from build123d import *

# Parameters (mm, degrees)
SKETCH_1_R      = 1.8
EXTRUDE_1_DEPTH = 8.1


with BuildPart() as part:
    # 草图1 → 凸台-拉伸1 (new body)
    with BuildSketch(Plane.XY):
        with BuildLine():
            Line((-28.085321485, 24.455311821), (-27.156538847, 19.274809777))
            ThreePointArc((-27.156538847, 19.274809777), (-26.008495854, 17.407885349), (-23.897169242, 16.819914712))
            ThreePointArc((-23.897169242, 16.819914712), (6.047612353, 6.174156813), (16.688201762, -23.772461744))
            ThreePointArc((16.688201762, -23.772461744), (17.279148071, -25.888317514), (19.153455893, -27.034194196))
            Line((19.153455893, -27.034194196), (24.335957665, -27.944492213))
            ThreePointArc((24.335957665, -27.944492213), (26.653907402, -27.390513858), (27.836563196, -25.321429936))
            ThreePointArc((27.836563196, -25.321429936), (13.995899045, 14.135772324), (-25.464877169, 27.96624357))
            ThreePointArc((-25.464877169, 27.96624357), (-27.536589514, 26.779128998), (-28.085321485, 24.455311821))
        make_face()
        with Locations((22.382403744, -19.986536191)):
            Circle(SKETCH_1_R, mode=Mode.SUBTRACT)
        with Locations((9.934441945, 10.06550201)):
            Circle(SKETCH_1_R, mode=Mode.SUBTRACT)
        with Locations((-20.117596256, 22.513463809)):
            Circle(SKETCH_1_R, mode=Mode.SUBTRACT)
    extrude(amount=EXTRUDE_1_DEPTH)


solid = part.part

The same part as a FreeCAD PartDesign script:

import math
import FreeCAD as App
import Part
import Sketcher

V = App.Vector

doc = App.newDocument("Part")
body = doc.addObject("PartDesign::Body", "Body")

# Sketch on XY plane
sketch1 = body.newObject("Sketcher::SketchObject", "Sketch")
sketch1.AttachmentSupport = (doc.getObject("XY_Plane"), [""])
sketch1.MapMode = "FlatFace"
sketch1.addGeometry([
    Part.LineSegment(V(-28.085321, 24.455312, 0), V(-27.156539, 19.27481, 0)),  # 0
    Part.ArcOfCircle(Part.Circle(V(-24.203621, 19.804222, 0), V(0, 0, 1), 3), math.radians(-169.835751), math.radians(-84.136974)),  # 1
    Part.ArcOfCircle(Part.Circle(V(-20.117596, -19.986536, 0), V(0, 0, 1), 37), math.radians(-5.872915), math.radians(95.863026)),  # 2
    Part.ArcOfCircle(Part.Circle(V(19.672456, -24.079429, 0), V(0, 0, 1), 3), math.radians(174.127085), math.radians(260.037713)),  # 3
    Part.LineSegment(V(19.153456, -27.034194, 0), V(24.335958, -27.944492, 0)),  # 4
    Part.ArcOfCircle(Part.Circle(V(24.854957, -24.989727, 0), V(0, 0, 1), 3), math.radians(-99.962287), math.radians(-6.348045)),  # 5
    Part.ArcOfCircle(Part.Circle(V(-20.117596, -19.986536, 0), V(0, 0, 1), 48.25), math.radians(-6.348045), math.radians(96.362845)),  # 6
    Part.ArcOfCircle(Part.Circle(V(-25.132404, 24.984724, 0), V(0, 0, 1), 3), math.radians(96.362845), math.radians(190.164249)),  # 7
    Part.Circle(V(22.382404, -19.986536, 0), V(0, 0, 1), 1.8),  # 8
    Part.Circle(V(-20.117596, 22.513464, 0), V(0, 0, 1), 1.8),  # 9
    Part.Circle(V(9.934442, 10.065502, 0), V(0, 0, 1), 1.8),  # 10
], False)
sketch1.addConstraint([
    Sketcher.Constraint("Tangent", 0, 2, 1, 1),
    Sketcher.Constraint("Tangent", 1, 2, 2, 2),
    Sketcher.Constraint("Tangent", 2, 1, 3, 1),
    Sketcher.Constraint("Tangent", 3, 2, 4, 1),
    Sketcher.Constraint("Tangent", 4, 2, 5, 1),
    Sketcher.Constraint("Tangent", 5, 2, 6, 1),
    Sketcher.Constraint("Tangent", 6, 2, 7, 1),
    Sketcher.Constraint("Tangent", 7, 2, 0, 1),
    Sketcher.Constraint("Coincident", 6, 3, 2, 3),
    Sketcher.Constraint("Equal", 1, 3),
    Sketcher.Constraint("Equal", 3, 5),
    Sketcher.Constraint("Equal", 5, 7),
    Sketcher.Constraint("Equal", 8, 9),
    Sketcher.Constraint("Equal", 9, 10),
    Sketcher.Constraint("Horizontal", 6, 3, 8, 3),
    Sketcher.Constraint("Vertical", 6, 3, 9, 3),
    Sketcher.Constraint("Radius", 1, 3.0),
    Sketcher.Constraint("Radius", 2, 37.0),
    Sketcher.Constraint("Diameter", 8, 3.6),
    Sketcher.Constraint("Radius", 6, 48.25),
    Sketcher.Constraint("DistanceX", 6, 3, 8, 3, 42.5),
    Sketcher.Constraint("DistanceY", 6, 3, 9, 3, 42.5),
    Sketcher.Constraint("DistanceX", 3, 2, 3, 3, 0.519),
    Sketcher.Constraint("DistanceY", 5, 2, 3, 3, 1.242001),
    Sketcher.Constraint("Distance", 0, 5.263102),
    Sketcher.Constraint("DistanceX", -1, 1, 2, 1, 16.688202),
    Sketcher.Constraint("DistanceX", 7, 2, 1, 3, 3.8817),
    Sketcher.Constraint("DistanceY", -1, 1, 1, 3, 19.804222),
    Sketcher.Constraint("DistanceX", -1, 1, 10, 3, 9.934442),
    Sketcher.Constraint("DistanceY", 8, 3, 10, 3, 30.052038),
])
pad1 = body.newObject("PartDesign::Pad", "Pad")
pad1.Profile = sketch1
pad1.Length = 8.1

doc.recompute()
